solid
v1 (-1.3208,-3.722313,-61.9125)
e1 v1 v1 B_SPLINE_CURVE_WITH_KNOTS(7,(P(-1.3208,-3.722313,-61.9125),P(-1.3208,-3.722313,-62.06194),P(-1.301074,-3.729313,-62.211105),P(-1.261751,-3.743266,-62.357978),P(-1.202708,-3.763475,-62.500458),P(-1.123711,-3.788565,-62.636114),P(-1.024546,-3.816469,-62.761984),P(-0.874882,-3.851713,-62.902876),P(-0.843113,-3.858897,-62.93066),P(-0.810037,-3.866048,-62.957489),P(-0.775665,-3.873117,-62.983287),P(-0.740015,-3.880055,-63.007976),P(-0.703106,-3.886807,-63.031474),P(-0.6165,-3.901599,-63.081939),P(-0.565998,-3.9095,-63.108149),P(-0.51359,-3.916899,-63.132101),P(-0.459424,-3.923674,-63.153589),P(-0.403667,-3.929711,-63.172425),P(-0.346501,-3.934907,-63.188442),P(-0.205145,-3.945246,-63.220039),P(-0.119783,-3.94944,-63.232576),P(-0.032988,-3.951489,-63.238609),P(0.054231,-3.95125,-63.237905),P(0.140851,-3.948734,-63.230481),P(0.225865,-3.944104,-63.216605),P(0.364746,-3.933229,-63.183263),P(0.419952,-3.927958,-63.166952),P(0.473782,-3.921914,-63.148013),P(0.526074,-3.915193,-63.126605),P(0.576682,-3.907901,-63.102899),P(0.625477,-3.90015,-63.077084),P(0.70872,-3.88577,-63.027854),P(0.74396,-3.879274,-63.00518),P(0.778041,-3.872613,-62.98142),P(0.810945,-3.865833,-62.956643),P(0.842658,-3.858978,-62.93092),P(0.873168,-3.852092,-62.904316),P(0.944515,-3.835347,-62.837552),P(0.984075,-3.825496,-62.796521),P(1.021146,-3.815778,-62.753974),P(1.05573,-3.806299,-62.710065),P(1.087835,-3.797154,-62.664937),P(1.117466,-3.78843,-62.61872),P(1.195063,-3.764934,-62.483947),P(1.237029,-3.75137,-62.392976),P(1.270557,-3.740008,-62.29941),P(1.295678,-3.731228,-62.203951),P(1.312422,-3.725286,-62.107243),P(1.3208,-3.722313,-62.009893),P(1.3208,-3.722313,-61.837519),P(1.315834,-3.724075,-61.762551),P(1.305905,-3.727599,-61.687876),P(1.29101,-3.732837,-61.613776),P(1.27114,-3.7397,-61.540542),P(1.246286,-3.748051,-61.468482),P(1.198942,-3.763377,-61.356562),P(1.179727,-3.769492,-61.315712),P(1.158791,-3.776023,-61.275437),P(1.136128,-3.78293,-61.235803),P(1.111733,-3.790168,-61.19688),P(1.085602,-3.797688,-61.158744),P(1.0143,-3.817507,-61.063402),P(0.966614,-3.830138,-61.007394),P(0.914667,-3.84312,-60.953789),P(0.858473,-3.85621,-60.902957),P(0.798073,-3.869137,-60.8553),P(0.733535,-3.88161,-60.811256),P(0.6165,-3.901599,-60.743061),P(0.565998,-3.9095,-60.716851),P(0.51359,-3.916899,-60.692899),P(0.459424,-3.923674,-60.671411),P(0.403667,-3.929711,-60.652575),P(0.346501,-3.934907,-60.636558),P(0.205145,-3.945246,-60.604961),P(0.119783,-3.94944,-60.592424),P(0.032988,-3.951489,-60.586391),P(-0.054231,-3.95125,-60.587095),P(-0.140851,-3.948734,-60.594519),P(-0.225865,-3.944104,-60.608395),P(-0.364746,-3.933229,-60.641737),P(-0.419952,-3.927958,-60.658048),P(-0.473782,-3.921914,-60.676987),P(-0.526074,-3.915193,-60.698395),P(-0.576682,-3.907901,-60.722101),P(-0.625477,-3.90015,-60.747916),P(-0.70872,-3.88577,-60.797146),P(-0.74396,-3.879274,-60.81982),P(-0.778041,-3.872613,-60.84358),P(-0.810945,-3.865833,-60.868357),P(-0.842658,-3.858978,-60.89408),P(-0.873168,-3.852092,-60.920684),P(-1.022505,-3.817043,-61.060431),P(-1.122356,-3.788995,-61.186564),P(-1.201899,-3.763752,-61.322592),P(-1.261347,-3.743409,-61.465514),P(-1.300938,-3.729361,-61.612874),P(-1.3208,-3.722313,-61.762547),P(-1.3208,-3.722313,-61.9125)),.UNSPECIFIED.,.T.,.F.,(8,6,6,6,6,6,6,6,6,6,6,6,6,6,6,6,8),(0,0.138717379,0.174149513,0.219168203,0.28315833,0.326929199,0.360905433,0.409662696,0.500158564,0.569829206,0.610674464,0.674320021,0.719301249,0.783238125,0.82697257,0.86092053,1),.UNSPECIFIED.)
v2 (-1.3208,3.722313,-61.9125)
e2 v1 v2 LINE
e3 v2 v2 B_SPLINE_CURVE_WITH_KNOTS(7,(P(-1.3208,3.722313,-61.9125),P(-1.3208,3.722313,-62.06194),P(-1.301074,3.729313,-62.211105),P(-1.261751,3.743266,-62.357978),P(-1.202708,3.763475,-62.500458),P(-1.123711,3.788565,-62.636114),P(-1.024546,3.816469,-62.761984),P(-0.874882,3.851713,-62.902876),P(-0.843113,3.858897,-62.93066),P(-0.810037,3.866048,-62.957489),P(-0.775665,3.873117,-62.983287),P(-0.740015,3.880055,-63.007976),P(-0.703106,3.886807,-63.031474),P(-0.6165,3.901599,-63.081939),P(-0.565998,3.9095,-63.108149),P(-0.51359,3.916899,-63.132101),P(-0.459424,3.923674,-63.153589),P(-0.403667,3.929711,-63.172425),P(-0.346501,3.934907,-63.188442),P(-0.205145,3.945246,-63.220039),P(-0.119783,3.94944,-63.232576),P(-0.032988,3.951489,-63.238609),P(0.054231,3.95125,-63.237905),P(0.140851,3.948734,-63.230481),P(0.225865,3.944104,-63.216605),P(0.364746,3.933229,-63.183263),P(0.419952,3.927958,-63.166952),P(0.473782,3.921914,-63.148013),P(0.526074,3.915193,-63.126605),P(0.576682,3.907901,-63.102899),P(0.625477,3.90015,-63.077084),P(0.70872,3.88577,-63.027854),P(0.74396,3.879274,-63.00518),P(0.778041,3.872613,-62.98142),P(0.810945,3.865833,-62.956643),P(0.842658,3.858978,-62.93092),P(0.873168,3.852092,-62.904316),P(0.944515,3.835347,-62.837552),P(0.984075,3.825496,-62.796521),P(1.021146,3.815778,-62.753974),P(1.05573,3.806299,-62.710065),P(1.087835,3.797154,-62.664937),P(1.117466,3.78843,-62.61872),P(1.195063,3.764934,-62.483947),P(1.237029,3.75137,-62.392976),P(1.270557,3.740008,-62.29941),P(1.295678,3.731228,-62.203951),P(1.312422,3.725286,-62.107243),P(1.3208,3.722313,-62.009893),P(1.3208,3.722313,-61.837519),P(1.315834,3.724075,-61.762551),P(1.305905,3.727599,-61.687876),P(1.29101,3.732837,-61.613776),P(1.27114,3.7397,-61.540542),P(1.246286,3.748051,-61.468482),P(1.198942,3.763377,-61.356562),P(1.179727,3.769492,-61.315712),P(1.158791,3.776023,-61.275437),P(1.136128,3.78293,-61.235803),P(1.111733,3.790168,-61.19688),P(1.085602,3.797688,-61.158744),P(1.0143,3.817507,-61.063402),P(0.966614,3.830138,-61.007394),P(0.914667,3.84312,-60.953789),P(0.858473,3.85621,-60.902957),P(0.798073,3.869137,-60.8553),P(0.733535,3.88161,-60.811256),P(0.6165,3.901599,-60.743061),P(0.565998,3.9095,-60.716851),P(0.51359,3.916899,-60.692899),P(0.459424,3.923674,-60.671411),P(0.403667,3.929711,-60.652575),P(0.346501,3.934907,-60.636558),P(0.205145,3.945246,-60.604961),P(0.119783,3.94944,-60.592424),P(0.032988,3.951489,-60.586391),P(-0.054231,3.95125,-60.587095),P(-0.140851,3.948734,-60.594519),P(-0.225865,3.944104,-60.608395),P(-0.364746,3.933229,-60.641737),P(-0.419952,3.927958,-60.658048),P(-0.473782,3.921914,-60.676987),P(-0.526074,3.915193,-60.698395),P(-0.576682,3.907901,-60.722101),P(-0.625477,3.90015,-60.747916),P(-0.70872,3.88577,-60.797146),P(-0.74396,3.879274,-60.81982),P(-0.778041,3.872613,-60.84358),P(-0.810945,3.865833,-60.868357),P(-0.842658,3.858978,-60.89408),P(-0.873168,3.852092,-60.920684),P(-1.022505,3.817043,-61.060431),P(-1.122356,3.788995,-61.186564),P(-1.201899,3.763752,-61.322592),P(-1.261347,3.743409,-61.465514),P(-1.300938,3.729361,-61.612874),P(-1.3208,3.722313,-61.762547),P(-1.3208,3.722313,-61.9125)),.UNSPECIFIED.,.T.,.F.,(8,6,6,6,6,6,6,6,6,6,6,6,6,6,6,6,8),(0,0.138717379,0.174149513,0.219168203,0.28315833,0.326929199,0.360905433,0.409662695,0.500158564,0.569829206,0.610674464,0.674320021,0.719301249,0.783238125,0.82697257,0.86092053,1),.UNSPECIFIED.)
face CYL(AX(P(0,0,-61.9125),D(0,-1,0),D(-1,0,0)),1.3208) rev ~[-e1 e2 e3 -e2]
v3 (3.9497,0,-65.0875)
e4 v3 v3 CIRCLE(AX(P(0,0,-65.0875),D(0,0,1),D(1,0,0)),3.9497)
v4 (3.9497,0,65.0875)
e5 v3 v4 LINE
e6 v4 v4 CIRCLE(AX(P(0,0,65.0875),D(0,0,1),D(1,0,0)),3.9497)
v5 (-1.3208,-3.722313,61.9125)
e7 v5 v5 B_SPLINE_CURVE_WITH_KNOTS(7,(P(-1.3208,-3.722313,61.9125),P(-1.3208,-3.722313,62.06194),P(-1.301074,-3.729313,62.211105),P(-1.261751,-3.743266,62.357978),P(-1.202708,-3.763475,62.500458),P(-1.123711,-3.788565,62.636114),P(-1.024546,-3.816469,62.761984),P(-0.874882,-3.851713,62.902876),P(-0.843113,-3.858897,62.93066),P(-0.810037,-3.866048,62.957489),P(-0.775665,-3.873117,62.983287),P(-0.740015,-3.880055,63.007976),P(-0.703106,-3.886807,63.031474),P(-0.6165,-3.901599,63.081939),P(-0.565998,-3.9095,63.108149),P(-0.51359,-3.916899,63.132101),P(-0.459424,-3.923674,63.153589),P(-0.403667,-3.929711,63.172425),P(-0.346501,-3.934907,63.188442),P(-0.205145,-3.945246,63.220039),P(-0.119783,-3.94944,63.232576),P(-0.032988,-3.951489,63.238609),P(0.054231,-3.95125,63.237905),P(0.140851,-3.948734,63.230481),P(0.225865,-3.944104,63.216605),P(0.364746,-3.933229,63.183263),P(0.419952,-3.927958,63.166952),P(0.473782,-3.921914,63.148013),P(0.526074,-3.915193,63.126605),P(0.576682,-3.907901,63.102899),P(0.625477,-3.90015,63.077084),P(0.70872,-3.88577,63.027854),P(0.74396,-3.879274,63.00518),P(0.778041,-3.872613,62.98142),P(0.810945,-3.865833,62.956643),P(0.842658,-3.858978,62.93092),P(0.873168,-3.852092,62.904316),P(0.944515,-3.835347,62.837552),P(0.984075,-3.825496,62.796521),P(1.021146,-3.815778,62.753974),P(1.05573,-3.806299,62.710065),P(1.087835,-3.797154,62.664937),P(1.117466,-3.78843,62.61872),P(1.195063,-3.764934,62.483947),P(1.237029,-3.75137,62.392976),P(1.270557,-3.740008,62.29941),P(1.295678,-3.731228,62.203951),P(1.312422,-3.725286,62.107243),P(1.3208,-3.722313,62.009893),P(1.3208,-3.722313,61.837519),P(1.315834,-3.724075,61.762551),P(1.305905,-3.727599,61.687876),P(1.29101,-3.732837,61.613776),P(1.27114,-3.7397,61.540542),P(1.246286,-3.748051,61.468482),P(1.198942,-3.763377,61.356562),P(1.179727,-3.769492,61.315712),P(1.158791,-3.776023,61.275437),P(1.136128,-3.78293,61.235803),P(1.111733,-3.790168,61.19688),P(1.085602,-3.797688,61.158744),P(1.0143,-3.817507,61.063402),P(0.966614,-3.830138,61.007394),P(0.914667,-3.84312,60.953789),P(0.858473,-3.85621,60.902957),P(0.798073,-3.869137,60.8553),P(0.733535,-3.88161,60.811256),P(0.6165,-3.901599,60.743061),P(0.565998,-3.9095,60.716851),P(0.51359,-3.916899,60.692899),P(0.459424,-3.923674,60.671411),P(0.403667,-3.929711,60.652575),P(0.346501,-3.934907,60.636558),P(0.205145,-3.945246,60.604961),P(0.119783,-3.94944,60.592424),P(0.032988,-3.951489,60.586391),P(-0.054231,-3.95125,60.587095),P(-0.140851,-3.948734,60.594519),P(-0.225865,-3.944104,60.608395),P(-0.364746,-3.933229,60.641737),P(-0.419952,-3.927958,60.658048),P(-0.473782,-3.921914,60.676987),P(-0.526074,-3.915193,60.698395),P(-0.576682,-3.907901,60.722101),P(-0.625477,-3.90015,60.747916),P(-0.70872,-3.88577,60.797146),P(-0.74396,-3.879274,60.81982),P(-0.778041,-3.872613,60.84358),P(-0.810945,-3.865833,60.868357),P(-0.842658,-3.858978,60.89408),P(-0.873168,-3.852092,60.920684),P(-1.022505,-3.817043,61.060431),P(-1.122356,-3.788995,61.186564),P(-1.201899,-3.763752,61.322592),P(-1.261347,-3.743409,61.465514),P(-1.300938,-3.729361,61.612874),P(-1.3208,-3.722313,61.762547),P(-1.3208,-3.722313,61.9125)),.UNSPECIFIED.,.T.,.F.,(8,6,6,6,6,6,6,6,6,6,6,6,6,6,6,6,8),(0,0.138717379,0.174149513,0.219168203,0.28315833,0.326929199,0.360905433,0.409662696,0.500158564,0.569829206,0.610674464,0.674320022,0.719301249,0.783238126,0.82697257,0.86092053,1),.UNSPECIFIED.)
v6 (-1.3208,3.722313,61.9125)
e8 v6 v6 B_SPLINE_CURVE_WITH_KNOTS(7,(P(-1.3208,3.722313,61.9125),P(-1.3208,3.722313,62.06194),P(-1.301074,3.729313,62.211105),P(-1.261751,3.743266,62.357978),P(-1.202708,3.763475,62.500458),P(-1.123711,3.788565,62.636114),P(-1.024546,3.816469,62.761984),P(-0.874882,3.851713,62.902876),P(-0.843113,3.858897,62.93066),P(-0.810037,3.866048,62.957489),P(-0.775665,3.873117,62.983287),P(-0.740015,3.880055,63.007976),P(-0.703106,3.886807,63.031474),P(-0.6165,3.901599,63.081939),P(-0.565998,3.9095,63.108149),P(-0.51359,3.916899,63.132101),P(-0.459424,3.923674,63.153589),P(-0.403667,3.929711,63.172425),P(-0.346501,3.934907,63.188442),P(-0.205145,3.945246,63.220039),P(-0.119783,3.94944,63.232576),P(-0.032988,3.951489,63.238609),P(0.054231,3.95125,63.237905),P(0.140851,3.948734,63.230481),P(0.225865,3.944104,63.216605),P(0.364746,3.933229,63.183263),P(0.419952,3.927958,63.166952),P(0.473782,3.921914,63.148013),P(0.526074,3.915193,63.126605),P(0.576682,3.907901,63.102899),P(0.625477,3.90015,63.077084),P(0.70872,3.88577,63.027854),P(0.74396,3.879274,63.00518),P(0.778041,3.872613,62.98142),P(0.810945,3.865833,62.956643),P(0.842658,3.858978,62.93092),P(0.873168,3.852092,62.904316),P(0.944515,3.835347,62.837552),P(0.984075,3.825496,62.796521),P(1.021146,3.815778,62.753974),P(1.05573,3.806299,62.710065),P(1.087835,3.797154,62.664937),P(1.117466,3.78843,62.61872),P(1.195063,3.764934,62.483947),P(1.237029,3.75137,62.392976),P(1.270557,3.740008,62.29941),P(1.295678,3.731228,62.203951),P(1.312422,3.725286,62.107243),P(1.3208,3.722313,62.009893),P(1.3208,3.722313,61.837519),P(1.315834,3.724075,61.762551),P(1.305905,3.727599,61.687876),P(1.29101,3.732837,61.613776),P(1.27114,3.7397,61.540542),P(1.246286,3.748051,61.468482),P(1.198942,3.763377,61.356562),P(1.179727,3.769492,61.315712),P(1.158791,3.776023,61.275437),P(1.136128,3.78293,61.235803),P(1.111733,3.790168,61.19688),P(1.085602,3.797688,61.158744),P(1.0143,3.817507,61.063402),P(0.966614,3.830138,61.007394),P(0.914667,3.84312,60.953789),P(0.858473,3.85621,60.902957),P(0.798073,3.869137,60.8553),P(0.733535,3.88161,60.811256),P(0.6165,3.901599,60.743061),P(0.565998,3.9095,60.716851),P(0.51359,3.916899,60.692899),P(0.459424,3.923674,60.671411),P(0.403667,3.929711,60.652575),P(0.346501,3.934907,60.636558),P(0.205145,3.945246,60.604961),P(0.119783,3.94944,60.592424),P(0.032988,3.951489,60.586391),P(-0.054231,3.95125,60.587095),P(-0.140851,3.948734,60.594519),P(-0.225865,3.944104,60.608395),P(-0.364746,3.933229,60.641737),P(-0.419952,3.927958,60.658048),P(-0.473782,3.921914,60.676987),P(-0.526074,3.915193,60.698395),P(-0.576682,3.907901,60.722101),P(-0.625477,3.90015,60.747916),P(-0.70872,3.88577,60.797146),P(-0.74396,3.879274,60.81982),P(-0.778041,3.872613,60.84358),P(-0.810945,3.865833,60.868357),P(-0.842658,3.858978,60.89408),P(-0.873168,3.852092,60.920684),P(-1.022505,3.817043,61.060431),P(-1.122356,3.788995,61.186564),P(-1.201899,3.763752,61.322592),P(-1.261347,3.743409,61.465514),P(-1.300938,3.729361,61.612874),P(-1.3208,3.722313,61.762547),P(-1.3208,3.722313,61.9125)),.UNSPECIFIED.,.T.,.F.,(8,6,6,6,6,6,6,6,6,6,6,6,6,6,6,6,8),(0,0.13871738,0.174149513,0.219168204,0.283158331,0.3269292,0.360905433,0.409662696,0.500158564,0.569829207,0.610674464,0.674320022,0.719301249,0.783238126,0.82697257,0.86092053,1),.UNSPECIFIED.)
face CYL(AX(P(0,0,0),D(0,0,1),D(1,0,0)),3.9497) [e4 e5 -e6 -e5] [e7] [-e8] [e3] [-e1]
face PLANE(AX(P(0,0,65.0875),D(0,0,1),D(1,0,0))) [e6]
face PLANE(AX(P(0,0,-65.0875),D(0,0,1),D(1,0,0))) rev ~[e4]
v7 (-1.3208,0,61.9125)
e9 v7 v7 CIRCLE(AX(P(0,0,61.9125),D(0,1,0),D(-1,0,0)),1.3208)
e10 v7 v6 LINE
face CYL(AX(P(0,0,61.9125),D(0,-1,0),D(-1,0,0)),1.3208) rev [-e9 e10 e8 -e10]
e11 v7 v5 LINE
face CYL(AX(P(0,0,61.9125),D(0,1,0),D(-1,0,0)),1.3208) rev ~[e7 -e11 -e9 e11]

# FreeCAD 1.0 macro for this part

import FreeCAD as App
import Part
import Sketcher

V = App.Vector
Q = App.Units.Quantity

doc = App.newDocument("Part")
body = doc.addObject("PartDesign::Body", "Body")

sketch1 = body.newObject("Sketcher::SketchObject", "Sketch")
sketch1.AttachmentSupport = (doc.getObject("XY_Plane"), [""])
sketch1.MapMode = "FlatFace"
sketch1.addGeometry(Part.Circle(V(0, 0, 0), V(0, 0, 1), 3.9), False)
sketch1.addConstraint([
    Sketcher.Constraint("Coincident", 0, 3, -1, 1),
    Sketcher.Constraint("Diameter", 0, Q("0.311 in")),
])
pad1 = body.newObject("PartDesign::Pad", "Pad")
pad1.Profile = sketch1
pad1.Length = Q("5.125 in")
pad1.Midplane = True

sketch2 = body.newObject("Sketcher::SketchObject", "Sketch001")
sketch2.AttachmentSupport = (doc.getObject("XZ_Plane"), [""])
sketch2.MapMode = "FlatFace"
sketch2.addGeometry(Part.Circle(V(0, 61.9, 0), V(0, 0, 1), 1.3), False)
sketch2.addConstraint([
    Sketcher.Constraint("PointOnObject", 0, 3, -2),
    Sketcher.Constraint("Diameter", 0, Q("0.104 in")),
    Sketcher.Constraint("DistanceY", -1, 1, 0, 3, Q("2.4375 in")),
])
pocket1 = body.newObject("PartDesign::Pocket", "Pocket")
pocket1.Profile = sketch2
pocket1.Type = "ThroughAll"
pocket1.Midplane = True
doc.recompute()

mirrored = body.newObject("PartDesign::Mirrored", "Mirrored")
mirrored.Originals = [pocket1]
mirrored.MirrorPlane = (doc.getObject("XY_Plane"), [""])
body.Tip = mirrored

doc.recompute()
